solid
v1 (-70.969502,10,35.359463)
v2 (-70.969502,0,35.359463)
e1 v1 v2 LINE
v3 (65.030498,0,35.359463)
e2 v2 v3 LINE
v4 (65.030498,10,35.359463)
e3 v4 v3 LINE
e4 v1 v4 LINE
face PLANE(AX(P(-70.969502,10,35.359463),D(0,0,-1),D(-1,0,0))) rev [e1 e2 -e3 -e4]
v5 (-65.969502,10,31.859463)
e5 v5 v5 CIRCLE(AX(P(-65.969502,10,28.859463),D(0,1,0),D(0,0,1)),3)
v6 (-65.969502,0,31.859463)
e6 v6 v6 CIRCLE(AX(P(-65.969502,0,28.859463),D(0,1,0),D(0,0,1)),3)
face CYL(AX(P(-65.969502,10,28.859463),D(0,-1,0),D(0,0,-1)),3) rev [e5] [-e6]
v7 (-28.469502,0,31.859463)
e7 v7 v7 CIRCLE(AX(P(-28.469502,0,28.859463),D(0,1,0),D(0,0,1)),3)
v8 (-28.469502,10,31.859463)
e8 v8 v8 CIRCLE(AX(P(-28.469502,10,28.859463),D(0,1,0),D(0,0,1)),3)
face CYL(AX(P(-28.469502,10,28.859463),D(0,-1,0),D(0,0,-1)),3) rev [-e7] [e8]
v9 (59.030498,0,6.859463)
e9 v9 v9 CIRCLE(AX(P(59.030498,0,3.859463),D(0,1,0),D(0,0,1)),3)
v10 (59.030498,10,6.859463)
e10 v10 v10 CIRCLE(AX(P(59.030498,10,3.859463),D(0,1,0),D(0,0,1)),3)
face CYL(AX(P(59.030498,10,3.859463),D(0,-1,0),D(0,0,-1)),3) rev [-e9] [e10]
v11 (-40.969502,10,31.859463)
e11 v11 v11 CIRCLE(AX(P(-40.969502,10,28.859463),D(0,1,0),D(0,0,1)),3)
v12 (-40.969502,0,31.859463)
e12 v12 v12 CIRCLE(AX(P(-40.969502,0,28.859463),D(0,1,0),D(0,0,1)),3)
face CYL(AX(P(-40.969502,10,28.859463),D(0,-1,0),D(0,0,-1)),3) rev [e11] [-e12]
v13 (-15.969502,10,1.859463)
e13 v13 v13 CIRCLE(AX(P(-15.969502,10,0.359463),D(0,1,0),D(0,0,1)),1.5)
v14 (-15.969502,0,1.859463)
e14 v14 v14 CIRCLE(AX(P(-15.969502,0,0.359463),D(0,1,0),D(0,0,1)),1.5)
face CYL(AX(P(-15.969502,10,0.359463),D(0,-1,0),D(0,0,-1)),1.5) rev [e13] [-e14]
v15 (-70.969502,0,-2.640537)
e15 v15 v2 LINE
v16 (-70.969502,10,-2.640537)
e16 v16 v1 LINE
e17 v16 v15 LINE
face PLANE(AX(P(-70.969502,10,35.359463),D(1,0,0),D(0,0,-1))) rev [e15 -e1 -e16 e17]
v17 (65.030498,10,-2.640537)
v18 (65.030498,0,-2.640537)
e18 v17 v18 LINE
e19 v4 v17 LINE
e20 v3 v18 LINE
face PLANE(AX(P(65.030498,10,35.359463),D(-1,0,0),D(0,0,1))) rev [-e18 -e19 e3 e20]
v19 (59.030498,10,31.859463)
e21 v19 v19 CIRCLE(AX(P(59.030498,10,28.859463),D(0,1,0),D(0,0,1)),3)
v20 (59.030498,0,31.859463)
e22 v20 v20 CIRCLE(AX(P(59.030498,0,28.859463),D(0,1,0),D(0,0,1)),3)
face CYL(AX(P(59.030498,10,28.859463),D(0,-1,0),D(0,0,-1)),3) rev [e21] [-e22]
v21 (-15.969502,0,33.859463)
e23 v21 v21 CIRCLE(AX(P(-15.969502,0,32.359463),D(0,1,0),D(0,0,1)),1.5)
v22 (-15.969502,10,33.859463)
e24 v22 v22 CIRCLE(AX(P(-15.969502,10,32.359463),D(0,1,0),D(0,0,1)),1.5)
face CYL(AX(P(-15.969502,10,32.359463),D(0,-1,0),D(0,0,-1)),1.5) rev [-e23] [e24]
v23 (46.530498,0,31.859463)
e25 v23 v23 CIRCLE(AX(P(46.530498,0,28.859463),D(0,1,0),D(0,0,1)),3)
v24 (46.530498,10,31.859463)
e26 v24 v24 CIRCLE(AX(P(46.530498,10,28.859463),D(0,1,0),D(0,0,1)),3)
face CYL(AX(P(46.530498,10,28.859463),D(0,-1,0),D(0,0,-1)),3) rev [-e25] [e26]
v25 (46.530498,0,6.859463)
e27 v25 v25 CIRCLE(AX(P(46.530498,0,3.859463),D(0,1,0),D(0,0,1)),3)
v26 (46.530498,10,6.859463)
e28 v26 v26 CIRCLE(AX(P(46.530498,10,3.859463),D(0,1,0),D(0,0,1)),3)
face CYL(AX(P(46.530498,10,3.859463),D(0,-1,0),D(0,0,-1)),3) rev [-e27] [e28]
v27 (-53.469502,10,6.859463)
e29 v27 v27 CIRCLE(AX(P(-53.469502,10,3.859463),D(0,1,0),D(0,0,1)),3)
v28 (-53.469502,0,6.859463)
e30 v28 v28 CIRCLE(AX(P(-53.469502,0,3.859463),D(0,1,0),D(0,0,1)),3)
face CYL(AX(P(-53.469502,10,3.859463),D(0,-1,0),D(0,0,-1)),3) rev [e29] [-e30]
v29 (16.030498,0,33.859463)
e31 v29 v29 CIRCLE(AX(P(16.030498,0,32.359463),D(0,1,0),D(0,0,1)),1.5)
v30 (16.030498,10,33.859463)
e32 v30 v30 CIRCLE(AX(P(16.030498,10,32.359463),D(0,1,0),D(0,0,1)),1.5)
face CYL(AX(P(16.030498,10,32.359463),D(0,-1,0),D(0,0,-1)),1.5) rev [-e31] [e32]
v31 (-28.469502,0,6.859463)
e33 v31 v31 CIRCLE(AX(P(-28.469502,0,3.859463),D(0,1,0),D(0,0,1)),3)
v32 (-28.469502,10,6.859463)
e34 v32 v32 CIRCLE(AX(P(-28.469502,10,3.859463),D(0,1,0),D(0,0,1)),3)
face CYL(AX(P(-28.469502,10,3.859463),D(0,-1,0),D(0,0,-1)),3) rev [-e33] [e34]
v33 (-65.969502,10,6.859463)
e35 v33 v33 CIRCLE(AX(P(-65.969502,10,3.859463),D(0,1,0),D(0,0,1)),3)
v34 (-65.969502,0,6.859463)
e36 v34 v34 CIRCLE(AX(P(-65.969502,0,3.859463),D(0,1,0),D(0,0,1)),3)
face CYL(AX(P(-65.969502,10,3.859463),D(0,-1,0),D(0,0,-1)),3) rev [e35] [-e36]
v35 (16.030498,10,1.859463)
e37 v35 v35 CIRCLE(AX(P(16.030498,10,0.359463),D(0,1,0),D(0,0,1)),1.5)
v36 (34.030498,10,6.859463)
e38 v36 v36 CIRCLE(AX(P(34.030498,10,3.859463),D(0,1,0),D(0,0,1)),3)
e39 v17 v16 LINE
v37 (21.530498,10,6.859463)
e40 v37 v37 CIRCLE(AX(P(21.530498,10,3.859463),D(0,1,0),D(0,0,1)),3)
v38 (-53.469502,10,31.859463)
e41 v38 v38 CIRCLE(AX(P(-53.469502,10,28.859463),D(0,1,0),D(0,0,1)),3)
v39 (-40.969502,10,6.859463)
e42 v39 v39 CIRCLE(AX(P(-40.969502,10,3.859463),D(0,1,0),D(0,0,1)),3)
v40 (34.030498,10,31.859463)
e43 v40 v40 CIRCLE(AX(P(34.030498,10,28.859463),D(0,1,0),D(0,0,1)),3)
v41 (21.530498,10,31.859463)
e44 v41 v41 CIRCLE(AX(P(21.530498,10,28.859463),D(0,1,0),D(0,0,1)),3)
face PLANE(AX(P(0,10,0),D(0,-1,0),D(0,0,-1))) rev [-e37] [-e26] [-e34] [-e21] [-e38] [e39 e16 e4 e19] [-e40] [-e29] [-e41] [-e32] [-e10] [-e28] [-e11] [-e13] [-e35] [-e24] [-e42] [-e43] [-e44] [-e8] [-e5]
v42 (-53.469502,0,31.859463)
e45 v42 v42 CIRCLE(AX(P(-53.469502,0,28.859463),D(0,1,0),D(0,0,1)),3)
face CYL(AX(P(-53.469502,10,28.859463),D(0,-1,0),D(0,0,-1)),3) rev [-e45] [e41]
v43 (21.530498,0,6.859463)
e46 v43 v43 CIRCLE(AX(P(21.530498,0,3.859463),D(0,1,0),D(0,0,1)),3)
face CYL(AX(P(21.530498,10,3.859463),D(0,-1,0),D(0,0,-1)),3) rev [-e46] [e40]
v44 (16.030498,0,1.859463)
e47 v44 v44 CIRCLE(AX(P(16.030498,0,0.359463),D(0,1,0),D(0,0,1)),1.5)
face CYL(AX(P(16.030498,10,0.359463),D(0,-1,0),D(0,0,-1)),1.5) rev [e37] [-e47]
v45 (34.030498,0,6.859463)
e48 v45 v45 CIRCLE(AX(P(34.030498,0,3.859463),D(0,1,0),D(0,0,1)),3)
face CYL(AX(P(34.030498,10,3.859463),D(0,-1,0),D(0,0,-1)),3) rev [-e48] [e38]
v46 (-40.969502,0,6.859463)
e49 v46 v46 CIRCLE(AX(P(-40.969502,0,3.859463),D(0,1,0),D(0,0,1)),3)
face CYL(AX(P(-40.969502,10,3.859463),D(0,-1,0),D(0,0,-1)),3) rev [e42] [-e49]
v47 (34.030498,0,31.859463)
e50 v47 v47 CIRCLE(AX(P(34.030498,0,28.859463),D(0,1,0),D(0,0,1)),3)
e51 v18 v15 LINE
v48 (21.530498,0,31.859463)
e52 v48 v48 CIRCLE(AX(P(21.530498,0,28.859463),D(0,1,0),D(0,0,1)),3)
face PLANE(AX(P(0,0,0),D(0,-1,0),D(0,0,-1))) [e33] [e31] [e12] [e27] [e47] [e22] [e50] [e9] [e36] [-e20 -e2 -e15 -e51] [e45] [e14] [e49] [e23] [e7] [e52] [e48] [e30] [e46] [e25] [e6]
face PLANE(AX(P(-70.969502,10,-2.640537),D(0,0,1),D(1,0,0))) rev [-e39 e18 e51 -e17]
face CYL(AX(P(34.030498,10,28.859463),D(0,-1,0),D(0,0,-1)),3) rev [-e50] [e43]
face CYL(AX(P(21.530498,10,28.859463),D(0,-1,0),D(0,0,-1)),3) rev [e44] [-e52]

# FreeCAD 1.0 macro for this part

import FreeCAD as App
import Part
import Sketcher
Q = App.Units.Quantity


def add_polygon(sketch, points):
    """Adds a closed chain of lines whose ends are joined by coincident constraints."""
    first, n = sketch.GeometryCount, len(points)
    for a, b in zip(points, points[1:] + points[:1]):
        sketch.addGeometry(Part.LineSegment(App.Vector(*a, 0), App.Vector(*b, 0)), False)
    for i in range(n):
        sketch.addConstraint(Sketcher.Constraint("Coincident", first + i, 2, first + (i + 1) % n, 1))

doc = App.newDocument("Part")
params = doc.addObject("Spreadsheet::Sheet", "Params")
for row, (alias, value) in enumerate([
    ("sketch1_diameter", "6 mm"),
    ("sketch1_diameter2", "3 mm"),
    ("sketch1_width", "136 mm"),
    ("sketch1_height", "38 mm"),
    ("pad1_length", "10 mm"),
], start=1):
    params.set(f"A{row}", alias)
    params.set(f"B{row}", "=" + value)
    params.setAlias(f"B{row}", alias)

body = doc.addObject("PartDesign::Body", "Body")

sketch1 = body.newObject("Sketcher::SketchObject", "Sketch")
sketch1.AttachmentSupport = (doc.getObject("XZ_Plane"), [""])
sketch1.MapMode = "FlatFace"
add_polygon(sketch1, [(-71, -2.6), (-71, 35.4), (65, 35.4), (65, -2.6)])
sketch1.addGeometry(Part.Circle(App.Vector(-66, 28.9, 0), App.Vector(0, 0, 1), 3), False)
sketch1.addGeometry(Part.Circle(App.Vector(-53.5, 28.9, 0), App.Vector(0, 0, 1), 3), False)
sketch1.addGeometry(Part.Circle(App.Vector(-41, 28.9, 0), App.Vector(0, 0, 1), 3), False)
sketch1.addGeometry(Part.Circle(App.Vector(-16, 32.4, 0), App.Vector(0, 0, 1), 1.5), False)
sketch1.addGeometry(Part.Circle(App.Vector(-28.5, 28.9, 0), App.Vector(0, 0, 1), 3), False)
sketch1.addGeometry(Part.Circle(App.Vector(16, 32.4, 0), App.Vector(0, 0, 1), 1.5), False)
sketch1.addGeometry(Part.Circle(App.Vector(21.5, 28.9, 0), App.Vector(0, 0, 1), 3), False)
sketch1.addGeometry(Part.Circle(App.Vector(34, 28.9, 0), App.Vector(0, 0, 1), 3), False)
sketch1.addGeometry(Part.Circle(App.Vector(46.5, 28.9, 0), App.Vector(0, 0, 1), 3), False)
sketch1.addGeometry(Part.Circle(App.Vector(59, 28.9, 0), App.Vector(0, 0, 1), 3), False)
sketch1.addGeometry(Part.Circle(App.Vector(-66, 3.9, 0), App.Vector(0, 0, 1), 3), False)
sketch1.addGeometry(Part.Circle(App.Vector(-53.5, 3.9, 0), App.Vector(0, 0, 1), 3), False)
sketch1.addGeometry(Part.Circle(App.Vector(-41, 3.9, 0), App.Vector(0, 0, 1), 3), False)
sketch1.addGeometry(Part.Circle(App.Vector(-28.5, 3.9, 0), App.Vector(0, 0, 1), 3), False)
sketch1.addGeometry(Part.Circle(App.Vector(-16, 0.4, 0), App.Vector(0, 0, 1), 1.5), False)
sketch1.addGeometry(Part.Circle(App.Vector(21.5, 3.9, 0), App.Vector(0, 0, 1), 3), False)
sketch1.addGeometry(Part.Circle(App.Vector(16, 0.4, 0), App.Vector(0, 0, 1), 1.5), False)
sketch1.addGeometry(Part.Circle(App.Vector(34, 3.9, 0), App.Vector(0, 0, 1), 3), False)
sketch1.addGeometry(Part.Circle(App.Vector(46.5, 3.9, 0), App.Vector(0, 0, 1), 3), False)
sketch1.addGeometry(Part.Circle(App.Vector(59, 3.9, 0), App.Vector(0, 0, 1), 3), False)
sketch1.addConstraint([
    Sketcher.Constraint("Vertical", 0),
    Sketcher.Constraint("Horizontal", 1),
    Sketcher.Constraint("Vertical", 2),
    Sketcher.Constraint("Horizontal", 3),
    Sketcher.Constraint("Equal", 4, 5),
    Sketcher.Constraint("Equal", 5, 6),
    Sketcher.Constraint("Equal", 6, 8),
    Sketcher.Constraint("Equal", 7, 9),
    Sketcher.Constraint("Equal", 8, 10),
    Sketcher.Constraint("Equal", 10, 11),
    Sketcher.Constraint("Equal", 11, 12),
    Sketcher.Constraint("Equal", 12, 13),
    Sketcher.Constraint("Equal", 13, 14),
    Sketcher.Constraint("Equal", 14, 15),
    Sketcher.Constraint("Equal", 15, 16),
    Sketcher.Constraint("Equal", 16, 17),
    Sketcher.Constraint("Equal", 9, 18),
    Sketcher.Constraint("Equal", 17, 19),
    Sketcher.Constraint("Equal", 18, 20),
    Sketcher.Constraint("Equal", 19, 21),
    Sketcher.Constraint("Equal", 21, 22),
    Sketcher.Constraint("Equal", 22, 23),
    Sketcher.Constraint("Horizontal", 4, 3, 5, 3),
    Sketcher.Constraint("Horizontal", 5, 3, 6, 3),
    Sketcher.Constraint("Horizontal", 6, 3, 8, 3),
    Sketcher.Constraint("Horizontal", 7, 3, 9, 3),
    Sketcher.Constraint("Horizontal", 8, 3, 10, 3),
    Sketcher.Constraint("Horizontal", 10, 3, 11, 3),
    Sketcher.Constraint("Horizontal", 11, 3, 12, 3),
    Sketcher.Constraint("Horizontal", 12, 3, 13, 3),
    Sketcher.Constraint("Horizontal", 14, 3, 15, 3),
    Sketcher.Constraint("Horizontal", 15, 3, 16, 3),
    Sketcher.Constraint("Horizontal", 16, 3, 17, 3),
    Sketcher.Constraint("Horizontal", 17, 3, 19, 3),
    Sketcher.Constraint("Horizontal", 18, 3, 20, 3),
    Sketcher.Constraint("Horizontal", 19, 3, 21, 3),
    Sketcher.Constraint("Horizontal", 21, 3, 22, 3),
    Sketcher.Constraint("Horizontal", 22, 3, 23, 3),
    Sketcher.Constraint("Vertical", 4, 3, 14, 3),
    Sketcher.Constraint("Vertical", 5, 3, 15, 3),
    Sketcher.Constraint("Vertical", 6, 3, 16, 3),
    Sketcher.Constraint("Vertical", 8, 3, 17, 3),
    Sketcher.Constraint("Vertical", 7, 3, 18, 3),
    Sketcher.Constraint("Vertical", 10, 3, 19, 3),
    Sketcher.Constraint("Vertical", 9, 3, 20, 3),
    Sketcher.Constraint("Vertical", 11, 3, 21, 3),
    Sketcher.Constraint("Vertical", 12, 3, 22, 3),
    Sketcher.Constraint("Vertical", 13, 3, 23, 3),
    Sketcher.Constraint("Diameter", 4, Q("6 mm")),
    Sketcher.Constraint("Diameter", 7, Q("3 mm")),
    Sketcher.Constraint("DistanceX", 1, 1, 1, 2, Q("136 mm")),
    Sketcher.Constraint("DistanceY", 0, 1, 0, 2, Q("38 mm")),
    Sketcher.Constraint("DistanceX", 4, 3, 6, 3, Q("25 mm")),
    Sketcher.Constraint("DistanceX", 6, 3, 7, 3, Q("25 mm")),
    Sketcher.Constraint("DistanceX", 5, 3, 8, 3, Q("25 mm")),
    Sketcher.Constraint("DistanceX", 7, 3, 9, 3, Q("32 mm")),
    Sketcher.Constraint("DistanceX", 8, 3, 10, 3, Q("50 mm")),
    Sketcher.Constraint("DistanceX", 9, 3, 11, 3, Q("18 mm")),
    Sketcher.Constraint("DistanceX", 10, 3, 12, 3, Q("25 mm")),
    Sketcher.Constraint("DistanceX", 11, 3, 13, 3, Q("25 mm")),
    Sketcher.Constraint("DistanceY", 14, 3, 4, 3, Q("25 mm")),
    Sketcher.Constraint("DistanceY", 18, 3, 7, 3, Q("32 mm")),
    Sketcher.Constraint("DistanceX", 0, 2, 4, 3, Q("5 mm")),
    Sketcher.Constraint("DistanceX", 4, 3, 5, 3, Q("12.5 mm")),
    Sketcher.Constraint("DistanceY", 6, 3, 7, 3, Q("3.5 mm")),
    Sketcher.Constraint("DistanceY", 4, 3, 0, 2, Q("6.5 mm")),
    Sketcher.Constraint("DistanceX", 4, 3, -1, 1, Q("65.969502 mm")),
    Sketcher.Constraint("DistanceY", -1, 1, 4, 3, Q("28.859463 mm")),
])
sketch1.setExpression("Constraints[52]", "Params.sketch1_diameter")
sketch1.setExpression("Constraints[53]", "Params.sketch1_diameter2")
sketch1.setExpression("Constraints[54]", "Params.sketch1_width")
sketch1.setExpression("Constraints[55]", "Params.sketch1_height")
pad1 = body.newObject("PartDesign::Pad", "Pad")
pad1.Profile = sketch1
pad1.setExpression("Length", "Params.pad1_length")
pad1.Reversed = True

doc.recompute()
